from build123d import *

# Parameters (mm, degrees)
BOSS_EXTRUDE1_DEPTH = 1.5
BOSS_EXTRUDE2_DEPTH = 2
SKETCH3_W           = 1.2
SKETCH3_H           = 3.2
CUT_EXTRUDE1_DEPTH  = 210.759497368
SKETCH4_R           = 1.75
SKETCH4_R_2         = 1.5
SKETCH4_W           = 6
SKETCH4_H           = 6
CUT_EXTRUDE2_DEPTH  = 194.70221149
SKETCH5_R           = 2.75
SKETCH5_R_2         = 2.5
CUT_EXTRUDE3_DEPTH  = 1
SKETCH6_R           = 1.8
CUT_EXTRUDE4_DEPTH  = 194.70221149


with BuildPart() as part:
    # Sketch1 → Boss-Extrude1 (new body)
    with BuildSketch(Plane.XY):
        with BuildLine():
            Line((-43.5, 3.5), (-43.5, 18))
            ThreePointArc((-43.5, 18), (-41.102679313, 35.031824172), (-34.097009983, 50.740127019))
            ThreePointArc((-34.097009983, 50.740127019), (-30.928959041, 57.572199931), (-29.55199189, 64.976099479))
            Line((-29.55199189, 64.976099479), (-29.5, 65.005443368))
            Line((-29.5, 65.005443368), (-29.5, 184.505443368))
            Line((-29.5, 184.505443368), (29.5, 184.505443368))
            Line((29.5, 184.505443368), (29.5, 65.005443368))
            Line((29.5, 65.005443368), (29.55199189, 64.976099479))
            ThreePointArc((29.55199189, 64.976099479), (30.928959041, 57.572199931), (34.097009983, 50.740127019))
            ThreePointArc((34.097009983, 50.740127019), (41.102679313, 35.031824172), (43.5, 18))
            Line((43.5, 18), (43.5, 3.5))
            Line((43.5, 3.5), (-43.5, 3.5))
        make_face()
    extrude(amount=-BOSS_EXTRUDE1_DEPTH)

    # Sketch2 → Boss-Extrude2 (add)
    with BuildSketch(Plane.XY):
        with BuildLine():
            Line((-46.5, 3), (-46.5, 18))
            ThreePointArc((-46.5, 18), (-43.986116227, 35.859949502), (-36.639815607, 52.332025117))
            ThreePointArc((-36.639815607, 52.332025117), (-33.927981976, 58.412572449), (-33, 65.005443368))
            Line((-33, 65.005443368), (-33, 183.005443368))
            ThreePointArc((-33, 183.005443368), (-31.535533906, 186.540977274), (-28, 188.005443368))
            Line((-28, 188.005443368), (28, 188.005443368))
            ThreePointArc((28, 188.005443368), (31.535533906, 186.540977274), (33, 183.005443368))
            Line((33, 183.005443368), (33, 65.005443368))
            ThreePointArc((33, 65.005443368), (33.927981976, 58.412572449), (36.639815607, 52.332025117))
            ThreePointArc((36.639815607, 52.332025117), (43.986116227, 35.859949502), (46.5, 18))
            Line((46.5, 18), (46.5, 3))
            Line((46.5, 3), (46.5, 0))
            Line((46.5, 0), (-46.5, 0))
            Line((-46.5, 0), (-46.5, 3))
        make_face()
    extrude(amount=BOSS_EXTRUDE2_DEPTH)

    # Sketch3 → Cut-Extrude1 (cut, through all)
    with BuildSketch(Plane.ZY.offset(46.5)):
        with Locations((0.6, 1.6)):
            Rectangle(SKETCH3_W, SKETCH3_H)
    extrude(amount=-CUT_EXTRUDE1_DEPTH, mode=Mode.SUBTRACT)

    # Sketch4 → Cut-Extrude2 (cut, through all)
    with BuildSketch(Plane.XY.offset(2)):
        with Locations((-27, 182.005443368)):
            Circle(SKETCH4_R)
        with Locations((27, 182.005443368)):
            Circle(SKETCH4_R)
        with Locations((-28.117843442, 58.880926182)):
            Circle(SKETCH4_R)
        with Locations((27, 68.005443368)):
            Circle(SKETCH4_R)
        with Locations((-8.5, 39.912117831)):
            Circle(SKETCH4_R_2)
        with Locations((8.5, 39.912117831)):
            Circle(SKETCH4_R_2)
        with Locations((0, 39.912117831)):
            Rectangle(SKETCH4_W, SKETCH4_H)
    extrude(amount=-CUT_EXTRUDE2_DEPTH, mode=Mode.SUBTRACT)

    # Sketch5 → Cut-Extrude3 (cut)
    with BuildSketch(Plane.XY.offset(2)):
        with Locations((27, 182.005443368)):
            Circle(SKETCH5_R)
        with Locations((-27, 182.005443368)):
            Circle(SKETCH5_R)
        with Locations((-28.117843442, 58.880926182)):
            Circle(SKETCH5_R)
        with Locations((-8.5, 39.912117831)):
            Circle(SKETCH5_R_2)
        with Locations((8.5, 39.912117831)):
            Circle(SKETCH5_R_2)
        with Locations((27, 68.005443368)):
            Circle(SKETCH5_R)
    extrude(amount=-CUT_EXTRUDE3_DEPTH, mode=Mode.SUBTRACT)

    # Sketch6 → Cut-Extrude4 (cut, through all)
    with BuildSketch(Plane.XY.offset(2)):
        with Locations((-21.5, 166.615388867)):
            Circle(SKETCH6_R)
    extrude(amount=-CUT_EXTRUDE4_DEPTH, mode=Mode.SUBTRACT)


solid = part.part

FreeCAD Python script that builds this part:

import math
import FreeCAD as App
import Part
import Sketcher
from FreeCAD import Vector


def add_polygon(sketch, points):
    """Adds a closed chain of lines whose ends are joined by coincident constraints."""
    first, n = sketch.GeometryCount, len(points)
    for a, b in zip(points, points[1:] + points[:1]):
        sketch.addGeometry(Part.LineSegment(App.Vector(*a, 0), App.Vector(*b, 0)), False)
    for i in range(n):
        sketch.addConstraint(Sketcher.Constraint("Coincident", first + i, 2, first + (i + 1) % n, 1))

doc = App.newDocument("Part")
params = doc.addObject("Spreadsheet::Sheet", "Params")
for row, (alias, value) in enumerate([
    ("sketch1_width", "87 mm"),
    ("sketch1_width2", "59 mm"),
    ("sketch1_height", "14.5 mm"),
    ("sketch1_height2", "119.5 mm"),
    ("pad1_length", "1.5 mm"),
    ("sketch2_radius", "5 mm"),
    ("sketch2_width", "93 mm"),
    ("sketch2_width2", "56 mm"),
    ("sketch2_height", "18 mm"),
    ("sketch2_height2", "118 mm"),
    ("pad2_length", "2 mm"),
    ("sketch3_width", "3.2 mm"),
    ("sketch3_height", "1.2 mm"),
    ("sketch4_diameter", "3 mm"),
    ("sketch4_diameter2", "3.5 mm"),
    ("sketch4_width", "6 mm"),
    ("sketch5_diameter", "5 mm"),
    ("sketch5_diameter2", "5.5 mm"),
    ("pocket3_length", "1 mm"),
    ("sketch6_diameter", "3.6 mm"),
], start=1):
    params.set(f"A{row}", alias)
    params.set(f"B{row}", "=" + value)
    params.setAlias(f"B{row}", alias)

body = doc.addObject("PartDesign::Body", "Body")

# Sketch on XY plane
sketch1 = doc.addObject("Sketcher::SketchObject", "Sketch")
body.addObject(sketch1)
sketch1.AttachmentSupport = (doc.XY_Plane, [""])
sketch1.MapMode = "FlatFace"
sketch1.addGeometry([
    Part.LineSegment(Vector(-43.5, 18, 0), Vector(-43.5, 3.5, 0)),  # 0
    Part.LineSegment(Vector(-43.5, 3.5, 0), Vector(43.5, 3.5, 0)),  # 1
    Part.LineSegment(Vector(43.5, 3.5, 0), Vector(43.5, 18, 0)),  # 2
    Part.ArcOfCircle(Part.Circle(Vector(-18.200169, 18, 0), Vector(0, 0, 1), 61.700169), math.radians(0), math.radians(32.048214)),  # 3
    Part.ArcOfCircle(Part.Circle(Vector(59.664479, 66.746386, 0), Vector(0, 0, 1), 30.164479), math.radians(-176.635505), math.radians(-147.951786)),  # 4
    Part.LineSegment(Vector(29.551992, 64.976099, 0), Vector(29.5, 65.005443, 0)),  # 5
    Part.LineSegment(Vector(29.5, 65.005443, 0), Vector(29.5, 184.505443, 0)),  # 6
    Part.LineSegment(Vector(29.5, 184.505443, 0), Vector(-29.5, 184.505443, 0)),  # 7
    Part.LineSegment(Vector(-29.5, 184.505443, 0), Vector(-29.5, 65.005443, 0)),  # 8
    Part.LineSegment(Vector(-29.5, 65.005443, 0), Vector(-29.551992, 64.976099, 0)),  # 9
    Part.ArcOfCircle(Part.Circle(Vector(-59.664479, 66.746386, 0), Vector(0, 0, 1), 30.164479), math.radians(-32.048214), math.radians(-3.364495)),  # 10
    Part.ArcOfCircle(Part.Circle(Vector(18.200169, 18, 0), Vector(0, 0, 1), 61.700169), math.radians(147.951786), math.radians(180)),  # 11
], False)
sketch1.addConstraint([
    Sketcher.Constraint("Coincident", 0, 2, 1, 1),
    Sketcher.Constraint("Coincident", 1, 2, 2, 1),
    Sketcher.Constraint("Tangent", 2, 2, 3, 1),
    Sketcher.Constraint("Tangent", 3, 2, 4, 2),
    Sketcher.Constraint("Coincident", 4, 1, 5, 1),
    Sketcher.Constraint("Coincident", 5, 2, 6, 1),
    Sketcher.Constraint("Coincident", 6, 2, 7, 1),
    Sketcher.Constraint("Coincident", 7, 2, 8, 1),
    Sketcher.Constraint("Coincident", 8, 2, 9, 1),
    Sketcher.Constraint("Coincident", 9, 2, 10, 2),
    Sketcher.Constraint("Tangent", 10, 1, 11, 1),
    Sketcher.Constraint("Tangent", 11, 2, 0, 1),
    Sketcher.Constraint("Vertical", 0),
    Sketcher.Constraint("Horizontal", 1),
    Sketcher.Constraint("Vertical", 2),
    Sketcher.Constraint("Vertical", 6),
    Sketcher.Constraint("Horizontal", 7),
    Sketcher.Constraint("Vertical", 8),
    Sketcher.Constraint("Equal", 4, 10),
    Sketcher.Constraint("Equal", 3, 11),
    Sketcher.Constraint("Symmetric", 4, 3, 10, 3, -2),
    Sketcher.Constraint("Symmetric", 5, 2, 8, 2, -2),
    Sketcher.Constraint("Horizontal", 3, 3, 11, 3),
    Sketcher.Constraint("Horizontal", 4, 1, 9, 2),
    Sketcher.Constraint("DistanceX", 1, 1, 1, 2, 87.0),
    Sketcher.Constraint("DistanceX", 7, 2, 7, 1, 59.0),
    Sketcher.Constraint("DistanceY", 0, 2, 0, 1, 14.5),
    Sketcher.Constraint("DistanceY", 6, 1, 6, 2, 119.5),
    Sketcher.Constraint("DistanceY", -1, 1, 3, 3, 18.0),
    Sketcher.Constraint("Radius", 3, 61.700169),
    Sketcher.Constraint("Radius", 4, 30.164479),
    Sketcher.Constraint("Distance", 5, 0.059701),
    Sketcher.Constraint("DistanceY", -1, 1, 4, 1, 64.976099),
    Sketcher.Constraint("DistanceX", -1, 1, 4, 3, 59.664479),
])
sketch1.setExpression("Constraints[24]", "Params.sketch1_width")
sketch1.setExpression("Constraints[25]", "Params.sketch1_width2")
sketch1.setExpression("Constraints[26]", "Params.sketch1_height")
sketch1.setExpression("Constraints[27]", "Params.sketch1_height2")
pad1 = doc.addObject("PartDesign::Pad", "Pad")
body.addObject(pad1)
pad1.Profile = sketch1
pad1.setExpression("Length", "Params.pad1_length")
pad1.Reversed = True

# Sketch on XY plane
sketch2 = doc.addObject("Sketcher::SketchObject", "Sketch001")
body.addObject(sketch2)
sketch2.AttachmentSupport = (doc.XY_Plane, [""])
sketch2.MapMode = "FlatFace"
sketch2.addGeometry([
    Part.ArcOfCircle(Part.Circle(Vector(18, 18, 0), Vector(0, 0, 1), 65), math.radians(148), math.radians(180)),  # 0
    Part.LineSegment(Vector(-46, 18, 0), Vector(-46, 0, 0)),  # 1
    Part.LineSegment(Vector(-46, 0, 0), Vector(46, 0, 0)),  # 2
    Part.LineSegment(Vector(46, 0, 0), Vector(46, 18, 0)),  # 3
    Part.ArcOfCircle(Part.Circle(Vector(-18, 18, 0), Vector(0, 0, 1), 65), math.radians(0), math.radians(32)),  # 4
    Part.ArcOfCircle(Part.Circle(Vector(57, 65, 0), Vector(0, 0, 1), 24), math.radians(-180), math.radians(-148)),  # 5
    Part.LineSegment(Vector(33, 65, 0), Vector(33, 183, 0)),  # 6
    Part.ArcOfCircle(Part.Circle(Vector(28, 183, 0), Vector(0, 0, 1), 5), math.radians(0), math.radians(90)),  # 7
    Part.LineSegment(Vector(28, 188, 0), Vector(-28, 188, 0)),  # 8
    Part.ArcOfCircle(Part.Circle(Vector(-28, 183, 0), Vector(0, 0, 1), 5), math.radians(90), math.radians(180)),  # 9
    Part.LineSegment(Vector(-33, 183, 0), Vector(-33, 65, 0)),  # 10
    Part.ArcOfCircle(Part.Circle(Vector(-57, 65, 0), Vector(0, 0, 1), 24), math.radians(-32), math.radians(0)),  # 11
], False)
sketch2.addConstraint([
    Sketcher.Constraint("Tangent", 0, 2, 1, 1),
    Sketcher.Constraint("Coincident", 1, 2, 2, 1),
    Sketcher.Constraint("Coincident", 2, 2, 3, 1),
    Sketcher.Constraint("Tangent", 3, 2, 4, 1),
    Sketcher.Constraint("Tangent", 4, 2, 5, 2),
    Sketcher.Constraint("Tangent", 5, 1, 6, 1),
    Sketcher.Constraint("Tangent", 6, 2, 7, 1),
    Sketcher.Constraint("Tangent", 7, 2, 8, 1),
    Sketcher.Constraint("Tangent", 8, 2, 9, 1),
    Sketcher.Constraint("Tangent", 9, 2, 10, 1),
    Sketcher.Constraint("Tangent", 10, 2, 11, 2),
    Sketcher.Constraint("Tangent", 11, 1, 0, 1),
    Sketcher.Constraint("Vertical", 1),
    Sketcher.Constraint("Horizontal", 2),
    Sketcher.Constraint("Vertical", 3),
    Sketcher.Constraint("Vertical", 6),
    Sketcher.Constraint("Horizontal", 8),
    Sketcher.Constraint("Vertical", 10),
    Sketcher.Constraint("Equal", 0, 4),
    Sketcher.Constraint("Equal", 7, 9),
    Sketcher.Constraint("Equal", 5, 11),
    Sketcher.Constraint("Symmetric", 1, 2, 2, 2, -1, 1),
    Sketcher.Constraint("Symmetric", 5, 3, 11, 3, -2),
    Sketcher.Constraint("Radius", 7, 5.0),
    Sketcher.Constraint("DistanceX", 2, 1, 2, 2, 93.0),
    Sketcher.Constraint("DistanceX", 8, 2, 8, 1, 56.0),
    Sketcher.Constraint("DistanceY", 1, 2, 1, 1, 18.0),
    Sketcher.Constraint("DistanceY", 6, 1, 6, 2, 118.0),
    Sketcher.Constraint("Radius", 5, 23.883598),
    Sketcher.Constraint("Radius", 0, 64.700169),
])
sketch2.setExpression("Constraints[23]", "Params.sketch2_radius")
sketch2.setExpression("Constraints[24]", "Params.sketch2_width")
sketch2.setExpression("Constraints[25]", "Params.sketch2_width2")
sketch2.setExpression("Constraints[26]", "Params.sketch2_height")
sketch2.setExpression("Constraints[27]", "Params.sketch2_height2")
pad2 = doc.addObject("PartDesign::Pad", "Pad001")
body.addObject(pad2)
pad2.Profile = sketch2
pad2.setExpression("Length", "Params.pad2_length")

# Sketch on YZ plane
sketch3 = doc.addObject("Sketcher::SketchObject", "Sketch002")
body.addObject(sketch3)
sketch3.AttachmentSupport = (doc.YZ_Plane, [""])
sketch3.MapMode = "FlatFace"
sketch3.AttachmentOffset = App.Placement(Vector(0, 0, -46.5), App.Rotation())
add_polygon(sketch3, [(3.2, 0), (0, 0), (0, 1.2), (3.2, 1.2)])  # lines 0-3
sketch3.addConstraint([
    Sketcher.Constraint("Horizontal", 0),
    Sketcher.Constraint("Vertical", 1),
    Sketcher.Constraint("Horizontal", 2),
    Sketcher.Constraint("Vertical", 3),
    Sketcher.Constraint("Coincident", 0, 2, -1, 1),
    Sketcher.Constraint("DistanceX", 0, 2, 0, 1, 3.2),
    Sketcher.Constraint("DistanceY", 1, 1, 1, 2, 1.2),
])
sketch3.setExpression("Constraints[9]", "Params.sketch3_width")
sketch3.setExpression("Constraints[10]", "Params.sketch3_height")
pocket1 = doc.addObject("PartDesign::Pocket", "Pocket")
body.addObject(pocket1)
pocket1.Profile = sketch3
pocket1.Type = "ThroughAll"
pocket1.Reversed = True

# Sketch on XY plane
sketch4 = doc.addObject("Sketcher::SketchObject", "Sketch003")
body.addObject(sketch4)
sketch4.AttachmentSupport = (doc.XY_Plane, [""])
sketch4.MapMode = "FlatFace"
sketch4.AttachmentOffset = App.Placement(Vector(0, 0, 2), App.Rotation())
sketch4.addGeometry(Part.Circle(Vector(-27, 182, 0), Vector(0, 0, 1), 1.8), False)  # 0
sketch4.addGeometry(Part.Circle(Vector(27, 182, 0), Vector(0, 0, 1), 1.8), False)  # 1
sketch4.addGeometry(Part.Circle(Vector(-28.1, 58.9, 0), Vector(0, 0, 1), 1.8), False)  # 2
sketch4.addGeometry(Part.Circle(Vector(27, 68, 0), Vector(0, 0, 1), 1.8), False)  # 3
sketch4.addGeometry(Part.Circle(Vector(-8.5, 39.9, 0), Vector(0, 0, 1), 1.5), False)  # 4
sketch4.addGeometry(Part.Circle(Vector(8.5, 39.9, 0), Vector(0, 0, 1), 1.5), False)  # 5
add_polygon(sketch4, [(-3, 42.9), (-3, 36.9), (3, 36.9), (3, 42.9)])  # lines 6-9
sketch4.addConstraint([
    Sketcher.Constraint("Vertical", 6),
    Sketcher.Constraint("Horizontal", 7),
    Sketcher.Constraint("Vertical", 8),
    Sketcher.Constraint("Horizontal", 9),
    Sketcher.Constraint("Equal", 0, 1),
    Sketcher.Constraint("Equal", 1, 2),
    Sketcher.Constraint("Equal", 2, 3),
    Sketcher.Constraint("Equal", 4, 5),
    Sketcher.Constraint("Symmetric", 0, 3, 1, 3, -2),
    Sketcher.Constraint("Symmetric", 4, 3, 5, 3, -2),
    Sketcher.Constraint("Vertical", 1, 3, 3, 3),
    Sketcher.Constraint("Equal", 9, 6),
    Sketcher.Constraint("Diameter", 4, 3.0),
    Sketcher.Constraint("Diameter", 0, 3.5),
    Sketcher.Constraint("DistanceX", 7, 1, 7, 2, 6.0),
    Sketcher.Constraint("DistanceX", 0, 3, -1, 1, 27.0),
    Sketcher.Constraint("DistanceX", 6, 2, -1, 1, 3.0),
    Sketcher.Constraint("DistanceY", 3, 3, 1, 3, 114.0),
    Sketcher.Constraint("DistanceX", 4, 3, 5, 3, 17.0),
    Sketcher.Constraint("DistanceY", 6, 2, 4, 3, 3.0),
    Sketcher.Constraint("DistanceY", 4, 3, 2, 3, 18.968808),
    Sketcher.Constraint("DistanceY", -1, 1, 0, 3, 182.005443),
    Sketcher.Constraint("DistanceX", 2, 3, -1, 1, 28.117843),
    Sketcher.Constraint("DistanceY", -1, 1, 2, 3, 58.880926),
])
sketch4.setExpression("Constraints[16]", "Params.sketch4_diameter")
sketch4.setExpression("Constraints[17]", "Params.sketch4_diameter2")
sketch4.setExpression("Constraints[18]", "Params.sketch4_width")
pocket2 = doc.addObject("PartDesign::Pocket", "Pocket001")
body.addObject(pocket2)
pocket2.Profile = sketch4
pocket2.Type = "ThroughAll"

# Sketch on XY plane
sketch5 = doc.addObject("Sketcher::SketchObject", "Sketch004")
body.addObject(sketch5)
sketch5.AttachmentSupport = (doc.XY_Plane, [""])
sketch5.MapMode = "FlatFace"
sketch5.AttachmentOffset = App.Placement(Vector(0, 0, 2), App.Rotation())
sketch5.addGeometry([
    Part.Circle(Vector(27, 182, 0), Vector(0, 0, 1), 2.8),  # 0
    Part.Circle(Vector(-27, 182, 0), Vector(0, 0, 1), 2.8),  # 1
    Part.Circle(Vector(-28.1, 58.9, 0), Vector(0, 0, 1), 2.8),  # 2
    Part.Circle(Vector(-8.5, 39.9, 0), Vector(0, 0, 1), 2.5),  # 3
    Part.Circle(Vector(8.5, 39.9, 0), Vector(0, 0, 1), 2.5),  # 4
    Part.Circle(Vector(27, 68, 0), Vector(0, 0, 1), 2.8),  # 5
], False)
sketch5.addConstraint([
    Sketcher.Constraint("Equal", 0, 1),
    Sketcher.Constraint("Equal", 1, 2),
    Sketcher.Constraint("Equal", 3, 4),
    Sketcher.Constraint("Equal", 2, 5),
    Sketcher.Constraint("Symmetric", 0, 3, 1, 3, -2),
    Sketcher.Constraint("Symmetric", 3, 3, 4, 3, -2),
    Sketcher.Constraint("Vertical", 0, 3, 5, 3),
    Sketcher.Constraint("Diameter", 3, 5.0),
    Sketcher.Constraint("Diameter", 0, 5.5),
    Sketcher.Constraint("DistanceX", -1, 1, 0, 3, 27.0),
    Sketcher.Constraint("DistanceX", 3, 3, 4, 3, 17.0),
    Sketcher.Constraint("DistanceY", 5, 3, 0, 3, 114.0),
    Sketcher.Constraint("DistanceY", 3, 3, 2, 3, 18.968808),
    Sketcher.Constraint("DistanceY", -1, 1, 0, 3, 182.005443),
    Sketcher.Constraint("DistanceX", 2, 3, -1, 1, 28.117843),
    Sketcher.Constraint("DistanceY", -1, 1, 2, 3, 58.880926),
])
sketch5.setExpression("Constraints[7]", "Params.sketch5_diameter")
sketch5.setExpression("Constraints[8]", "Params.sketch5_diameter2")
pocket3 = doc.addObject("PartDesign::Pocket", "Pocket002")
body.addObject(pocket3)
pocket3.Profile = sketch5
pocket3.setExpression("Length", "Params.pocket3_length")

# Sketch on XY plane
sketch6 = doc.addObject("Sketcher::SketchObject", "Sketch005")
body.addObject(sketch6)
sketch6.AttachmentSupport = (doc.XY_Plane, [""])
sketch6.MapMode = "FlatFace"
sketch6.AttachmentOffset = App.Placement(Vector(0, 0, 2), App.Rotation())
sketch6.addGeometry(Part.Circle(Vector(-21.5, 166.6, 0), Vector(0, 0, 1), 1.8), False)
sketch6.addConstraint([
    Sketcher.Constraint("Diameter", 0, 3.6),
    Sketcher.Constraint("DistanceX", 0, 3, -1, 1, 21.5),
    Sketcher.Constraint("DistanceY", -1, 1, 0, 3, 166.615389),
])
sketch6.setExpression("Constraints[0]", "Params.sketch6_diameter")
pocket4 = doc.addObject("PartDesign::Pocket", "Pocket003")
body.addObject(pocket4)
pocket4.Profile = sketch6
pocket4.Type = "ThroughAll"

doc.recompute()
